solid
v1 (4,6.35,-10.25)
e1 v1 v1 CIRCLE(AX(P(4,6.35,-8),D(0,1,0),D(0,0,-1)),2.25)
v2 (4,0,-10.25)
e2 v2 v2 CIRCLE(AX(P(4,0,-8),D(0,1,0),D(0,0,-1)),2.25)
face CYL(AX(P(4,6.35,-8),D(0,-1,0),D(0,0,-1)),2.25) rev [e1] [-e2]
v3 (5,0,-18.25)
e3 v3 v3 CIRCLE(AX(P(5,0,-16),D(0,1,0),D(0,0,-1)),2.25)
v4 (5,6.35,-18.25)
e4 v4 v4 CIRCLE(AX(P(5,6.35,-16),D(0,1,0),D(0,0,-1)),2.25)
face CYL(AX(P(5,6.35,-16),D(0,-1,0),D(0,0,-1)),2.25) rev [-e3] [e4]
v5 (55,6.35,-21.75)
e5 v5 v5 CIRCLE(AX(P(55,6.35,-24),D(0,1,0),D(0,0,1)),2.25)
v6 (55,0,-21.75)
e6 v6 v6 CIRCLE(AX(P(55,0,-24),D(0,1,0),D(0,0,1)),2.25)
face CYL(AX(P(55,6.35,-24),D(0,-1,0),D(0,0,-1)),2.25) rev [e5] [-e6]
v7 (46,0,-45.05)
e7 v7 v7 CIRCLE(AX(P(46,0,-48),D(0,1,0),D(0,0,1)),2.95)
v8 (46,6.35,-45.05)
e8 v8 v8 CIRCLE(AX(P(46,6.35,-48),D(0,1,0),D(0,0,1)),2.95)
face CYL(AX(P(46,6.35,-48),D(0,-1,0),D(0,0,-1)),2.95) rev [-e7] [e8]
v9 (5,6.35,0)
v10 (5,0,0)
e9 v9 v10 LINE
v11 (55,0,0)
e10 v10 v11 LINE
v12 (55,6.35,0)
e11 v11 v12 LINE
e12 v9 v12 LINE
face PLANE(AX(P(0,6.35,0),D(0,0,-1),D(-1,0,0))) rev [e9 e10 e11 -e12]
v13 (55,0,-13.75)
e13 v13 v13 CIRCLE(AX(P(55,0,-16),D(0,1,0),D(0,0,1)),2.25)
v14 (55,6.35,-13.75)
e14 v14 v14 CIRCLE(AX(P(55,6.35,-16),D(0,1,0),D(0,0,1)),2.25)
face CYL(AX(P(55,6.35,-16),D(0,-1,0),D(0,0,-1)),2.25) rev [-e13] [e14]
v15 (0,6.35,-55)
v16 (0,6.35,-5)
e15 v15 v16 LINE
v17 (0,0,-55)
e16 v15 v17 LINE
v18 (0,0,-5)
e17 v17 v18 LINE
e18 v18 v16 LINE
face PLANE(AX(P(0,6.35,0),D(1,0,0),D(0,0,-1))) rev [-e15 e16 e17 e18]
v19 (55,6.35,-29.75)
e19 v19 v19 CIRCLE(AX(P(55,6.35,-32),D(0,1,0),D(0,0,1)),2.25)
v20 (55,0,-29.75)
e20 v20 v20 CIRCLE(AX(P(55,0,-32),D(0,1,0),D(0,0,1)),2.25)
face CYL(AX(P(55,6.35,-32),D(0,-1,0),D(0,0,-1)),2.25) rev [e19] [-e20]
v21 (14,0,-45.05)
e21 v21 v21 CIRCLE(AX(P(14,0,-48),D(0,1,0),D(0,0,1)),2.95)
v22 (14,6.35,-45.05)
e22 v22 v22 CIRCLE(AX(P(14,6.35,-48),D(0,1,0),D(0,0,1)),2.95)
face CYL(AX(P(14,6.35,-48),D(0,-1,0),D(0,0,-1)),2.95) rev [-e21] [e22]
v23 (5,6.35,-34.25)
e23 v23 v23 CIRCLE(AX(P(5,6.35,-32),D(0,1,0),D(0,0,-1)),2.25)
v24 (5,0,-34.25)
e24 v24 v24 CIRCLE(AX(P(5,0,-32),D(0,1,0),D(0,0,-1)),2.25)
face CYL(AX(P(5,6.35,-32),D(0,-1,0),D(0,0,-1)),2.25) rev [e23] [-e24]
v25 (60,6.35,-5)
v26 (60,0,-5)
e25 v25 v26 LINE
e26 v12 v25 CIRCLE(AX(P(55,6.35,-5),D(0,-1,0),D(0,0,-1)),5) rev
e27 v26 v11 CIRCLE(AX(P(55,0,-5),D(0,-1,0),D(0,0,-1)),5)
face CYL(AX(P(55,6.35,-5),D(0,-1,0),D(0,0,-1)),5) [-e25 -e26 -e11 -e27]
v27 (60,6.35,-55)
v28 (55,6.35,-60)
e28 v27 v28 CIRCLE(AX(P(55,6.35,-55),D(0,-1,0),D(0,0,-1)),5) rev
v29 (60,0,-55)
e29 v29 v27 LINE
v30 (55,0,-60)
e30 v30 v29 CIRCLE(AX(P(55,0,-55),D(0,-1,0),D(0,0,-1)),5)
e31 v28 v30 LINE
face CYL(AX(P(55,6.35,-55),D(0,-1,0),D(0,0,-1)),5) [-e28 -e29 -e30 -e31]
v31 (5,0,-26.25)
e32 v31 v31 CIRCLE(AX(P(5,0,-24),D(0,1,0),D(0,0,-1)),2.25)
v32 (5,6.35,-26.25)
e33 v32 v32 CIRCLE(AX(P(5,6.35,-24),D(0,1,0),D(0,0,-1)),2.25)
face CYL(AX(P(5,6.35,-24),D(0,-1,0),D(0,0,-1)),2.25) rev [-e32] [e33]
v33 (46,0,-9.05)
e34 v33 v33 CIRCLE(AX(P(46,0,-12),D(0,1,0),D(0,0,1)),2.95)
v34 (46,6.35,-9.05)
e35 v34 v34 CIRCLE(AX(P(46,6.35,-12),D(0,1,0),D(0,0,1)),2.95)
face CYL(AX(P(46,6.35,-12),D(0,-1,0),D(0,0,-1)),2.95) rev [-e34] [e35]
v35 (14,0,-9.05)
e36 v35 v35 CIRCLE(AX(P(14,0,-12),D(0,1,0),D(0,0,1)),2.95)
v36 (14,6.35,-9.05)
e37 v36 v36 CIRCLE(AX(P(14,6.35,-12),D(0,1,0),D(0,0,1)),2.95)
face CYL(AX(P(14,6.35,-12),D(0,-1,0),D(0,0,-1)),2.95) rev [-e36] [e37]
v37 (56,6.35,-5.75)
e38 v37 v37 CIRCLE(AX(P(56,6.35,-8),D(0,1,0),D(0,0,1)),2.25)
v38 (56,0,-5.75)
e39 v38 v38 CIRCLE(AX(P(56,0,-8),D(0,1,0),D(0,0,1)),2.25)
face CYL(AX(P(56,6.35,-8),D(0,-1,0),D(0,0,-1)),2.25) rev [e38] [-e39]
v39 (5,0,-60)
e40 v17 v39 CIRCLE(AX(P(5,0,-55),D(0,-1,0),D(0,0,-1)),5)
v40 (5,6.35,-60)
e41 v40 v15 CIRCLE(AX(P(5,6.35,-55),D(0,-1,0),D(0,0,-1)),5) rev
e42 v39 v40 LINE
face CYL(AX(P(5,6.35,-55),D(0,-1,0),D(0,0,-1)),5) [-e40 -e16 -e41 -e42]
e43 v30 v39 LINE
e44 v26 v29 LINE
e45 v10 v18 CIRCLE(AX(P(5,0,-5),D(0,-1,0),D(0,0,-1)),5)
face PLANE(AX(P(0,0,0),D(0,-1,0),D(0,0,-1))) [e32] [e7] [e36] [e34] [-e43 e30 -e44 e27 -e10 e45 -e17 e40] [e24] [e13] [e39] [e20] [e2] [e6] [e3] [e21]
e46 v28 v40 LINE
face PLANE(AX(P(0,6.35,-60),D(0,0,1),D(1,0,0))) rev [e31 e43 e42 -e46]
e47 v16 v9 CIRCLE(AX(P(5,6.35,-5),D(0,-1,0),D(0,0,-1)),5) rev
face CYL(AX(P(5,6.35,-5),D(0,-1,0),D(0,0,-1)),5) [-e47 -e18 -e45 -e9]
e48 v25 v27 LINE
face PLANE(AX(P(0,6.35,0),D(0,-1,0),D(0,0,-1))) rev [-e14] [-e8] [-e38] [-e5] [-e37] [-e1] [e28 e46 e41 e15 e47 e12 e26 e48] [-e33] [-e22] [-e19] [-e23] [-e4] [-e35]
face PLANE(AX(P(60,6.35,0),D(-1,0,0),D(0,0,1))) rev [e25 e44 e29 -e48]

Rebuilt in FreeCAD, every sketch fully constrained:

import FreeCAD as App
import Part
import Sketcher


def edges_at(feature, points):
    """Names of the edges that pass closest to the given points."""
    edges = feature.Shape.Edges
    near = lambda p: min(range(len(edges)), key=lambda i: edges[i].distToShape(Part.Vertex(*p))[0])
    return sorted({f"Edge{near(p) + 1}" for p in points})

doc = App.newDocument("Part")
params = doc.addObject("Spreadsheet::Sheet", "Params")
for row, (alias, value) in enumerate([
    ("sketch1_diameter", "4.5 mm"),
    ("sketch1_diameter2", "5.9 mm"),
    ("sketch1_width", "60 mm"),
    ("pad1_length", "6.35 mm"),
    ("fillet_radius", "5 mm"),
], start=1):
    params.set(f"A{row}", alias)
    params.set(f"B{row}", "=" + value)
    params.setAlias(f"B{row}", alias)

body = doc.addObject("PartDesign::Body", "Body")

sketch1 = body.newObject("Sketcher::SketchObject", "Sketch")
sketch1.AttachmentSupport = (doc.getObject("XZ_Plane"), [""])
sketch1.MapMode = "FlatFace"
sketch1.addGeometry([
    Part.LineSegment(App.Vector(0, -60, 0), App.Vector(0, 0, 0)),
    Part.LineSegment(App.Vector(0, 0, 0), App.Vector(60, 0, 0)),
    Part.LineSegment(App.Vector(60, 0, 0), App.Vector(60, -60, 0)),
    Part.LineSegment(App.Vector(60, -60, 0), App.Vector(0, -60, 0)),
    Part.Circle(App.Vector(4, -8, 0), App.Vector(0, 0, 1), 2.25),
    Part.Circle(App.Vector(5, -16, 0), App.Vector(0, 0, 1), 2.25),
    Part.Circle(App.Vector(14, -12, 0), App.Vector(0, 0, 1), 2.95),
    Part.Circle(App.Vector(5, -24, 0), App.Vector(0, 0, 1), 2.25),
    Part.Circle(App.Vector(56, -8, 0), App.Vector(0, 0, 1), 2.25),
    Part.Circle(App.Vector(46, -12, 0), App.Vector(0, 0, 1), 2.95),
    Part.Circle(App.Vector(55, -16, 0), App.Vector(0, 0, 1), 2.25),
    Part.Circle(App.Vector(55, -24, 0), App.Vector(0, 0, 1), 2.25),
    Part.Circle(App.Vector(5, -32, 0), App.Vector(0, 0, 1), 2.25),
    Part.Circle(App.Vector(14, -48, 0), App.Vector(0, 0, 1), 2.95),
    Part.Circle(App.Vector(55, -32, 0), App.Vector(0, 0, 1), 2.25),
    Part.Circle(App.Vector(46, -48, 0), App.Vector(0, 0, 1), 2.95),
], False)
sketch1.addConstraint([
    Sketcher.Constraint("Coincident", 0, 2, 1, 1),
    Sketcher.Constraint("Coincident", 1, 2, 2, 1),
    Sketcher.Constraint("Coincident", 2, 2, 3, 1),
    Sketcher.Constraint("Coincident", 3, 2, 0, 1),
    Sketcher.Constraint("Vertical", 0),
    Sketcher.Constraint("Horizontal", 1),
    Sketcher.Constraint("Vertical", 2),
    Sketcher.Constraint("Horizontal", 3),
    Sketcher.Constraint("Coincident", 0, 2, -1, 1),
    Sketcher.Constraint("Equal", 4, 5),
    Sketcher.Constraint("Equal", 5, 7),
    Sketcher.Constraint("Equal", 7, 8),
    Sketcher.Constraint("Equal", 6, 9),
    Sketcher.Constraint("Equal", 8, 10),
    Sketcher.Constraint("Equal", 10, 11),
    Sketcher.Constraint("Equal", 11, 12),
    Sketcher.Constraint("Equal", 9, 13),
    Sketcher.Constraint("Equal", 12, 14),
    Sketcher.Constraint("Equal", 13, 15),
    Sketcher.Constraint("Horizontal", 4, 3, 8, 3),
    Sketcher.Constraint("Horizontal", 6, 3, 9, 3),
    Sketcher.Constraint("Horizontal", 5, 3, 10, 3),
    Sketcher.Constraint("Horizontal", 7, 3, 11, 3),
    Sketcher.Constraint("Horizontal", 12, 3, 14, 3),
    Sketcher.Constraint("Horizontal", 13, 3, 15, 3),
    Sketcher.Constraint("Vertical", 5, 3, 7, 3),
    Sketcher.Constraint("Vertical", 10, 3, 11, 3),
    Sketcher.Constraint("Vertical", 7, 3, 12, 3),
    Sketcher.Constraint("Vertical", 6, 3, 13, 3),
    Sketcher.Constraint("Vertical", 11, 3, 14, 3),
    Sketcher.Constraint("Vertical", 9, 3, 15, 3),
    Sketcher.Constraint("Equal", 3, 0),
    Sketcher.Constraint("Diameter", 4, 4.5),
    Sketcher.Constraint("Diameter", 6, 5.9),
    Sketcher.Constraint("DistanceX", 1, 1, 1, 2, 60.0),
    Sketcher.Constraint("DistanceX", -1, 1, 4, 3, 4.0),
    Sketcher.Constraint("DistanceY", 4, 3, -1, 1, 8.0),
    Sketcher.Constraint("DistanceX", -1, 1, 5, 3, 5.0),
    Sketcher.Constraint("DistanceY", 5, 3, -1, 1, 16.0),
    Sketcher.Constraint("DistanceX", -1, 1, 6, 3, 14.0),
    Sketcher.Constraint("DistanceY", 6, 3, -1, 1, 12.0),
    Sketcher.Constraint("DistanceY", 7, 3, -1, 1, 24.0),
    Sketcher.Constraint("DistanceX", -1, 1, 8, 3, 56.0),
    Sketcher.Constraint("DistanceX", -1, 1, 9, 3, 46.0),
    Sketcher.Constraint("DistanceX", -1, 1, 10, 3, 55.0),
    Sketcher.Constraint("DistanceY", 12, 3, -1, 1, 32.0),
    Sketcher.Constraint("DistanceY", 13, 3, -1, 1, 48.0),
])
sketch1.setExpression("Constraints[32]", "Params.sketch1_diameter")
sketch1.setExpression("Constraints[33]", "Params.sketch1_diameter2")
sketch1.setExpression("Constraints[34]", "Params.sketch1_width")
pad1 = body.newObject("PartDesign::Pad", "Pad")
pad1.Profile = sketch1
pad1.setExpression("Length", "Params.pad1_length")
pad1.Reversed = True
doc.recompute()

fillet = body.newObject("PartDesign::Fillet", "Fillet")
fillet.Base = (pad1, edges_at(pad1, [
    (0, 3.175, -60),
    (60, 3.175, -60),
    (60, 3.175, 0),
    (0, 3.175, 0),
]))
fillet.setExpression("Radius", "Params.fillet_radius")

doc.recompute()
